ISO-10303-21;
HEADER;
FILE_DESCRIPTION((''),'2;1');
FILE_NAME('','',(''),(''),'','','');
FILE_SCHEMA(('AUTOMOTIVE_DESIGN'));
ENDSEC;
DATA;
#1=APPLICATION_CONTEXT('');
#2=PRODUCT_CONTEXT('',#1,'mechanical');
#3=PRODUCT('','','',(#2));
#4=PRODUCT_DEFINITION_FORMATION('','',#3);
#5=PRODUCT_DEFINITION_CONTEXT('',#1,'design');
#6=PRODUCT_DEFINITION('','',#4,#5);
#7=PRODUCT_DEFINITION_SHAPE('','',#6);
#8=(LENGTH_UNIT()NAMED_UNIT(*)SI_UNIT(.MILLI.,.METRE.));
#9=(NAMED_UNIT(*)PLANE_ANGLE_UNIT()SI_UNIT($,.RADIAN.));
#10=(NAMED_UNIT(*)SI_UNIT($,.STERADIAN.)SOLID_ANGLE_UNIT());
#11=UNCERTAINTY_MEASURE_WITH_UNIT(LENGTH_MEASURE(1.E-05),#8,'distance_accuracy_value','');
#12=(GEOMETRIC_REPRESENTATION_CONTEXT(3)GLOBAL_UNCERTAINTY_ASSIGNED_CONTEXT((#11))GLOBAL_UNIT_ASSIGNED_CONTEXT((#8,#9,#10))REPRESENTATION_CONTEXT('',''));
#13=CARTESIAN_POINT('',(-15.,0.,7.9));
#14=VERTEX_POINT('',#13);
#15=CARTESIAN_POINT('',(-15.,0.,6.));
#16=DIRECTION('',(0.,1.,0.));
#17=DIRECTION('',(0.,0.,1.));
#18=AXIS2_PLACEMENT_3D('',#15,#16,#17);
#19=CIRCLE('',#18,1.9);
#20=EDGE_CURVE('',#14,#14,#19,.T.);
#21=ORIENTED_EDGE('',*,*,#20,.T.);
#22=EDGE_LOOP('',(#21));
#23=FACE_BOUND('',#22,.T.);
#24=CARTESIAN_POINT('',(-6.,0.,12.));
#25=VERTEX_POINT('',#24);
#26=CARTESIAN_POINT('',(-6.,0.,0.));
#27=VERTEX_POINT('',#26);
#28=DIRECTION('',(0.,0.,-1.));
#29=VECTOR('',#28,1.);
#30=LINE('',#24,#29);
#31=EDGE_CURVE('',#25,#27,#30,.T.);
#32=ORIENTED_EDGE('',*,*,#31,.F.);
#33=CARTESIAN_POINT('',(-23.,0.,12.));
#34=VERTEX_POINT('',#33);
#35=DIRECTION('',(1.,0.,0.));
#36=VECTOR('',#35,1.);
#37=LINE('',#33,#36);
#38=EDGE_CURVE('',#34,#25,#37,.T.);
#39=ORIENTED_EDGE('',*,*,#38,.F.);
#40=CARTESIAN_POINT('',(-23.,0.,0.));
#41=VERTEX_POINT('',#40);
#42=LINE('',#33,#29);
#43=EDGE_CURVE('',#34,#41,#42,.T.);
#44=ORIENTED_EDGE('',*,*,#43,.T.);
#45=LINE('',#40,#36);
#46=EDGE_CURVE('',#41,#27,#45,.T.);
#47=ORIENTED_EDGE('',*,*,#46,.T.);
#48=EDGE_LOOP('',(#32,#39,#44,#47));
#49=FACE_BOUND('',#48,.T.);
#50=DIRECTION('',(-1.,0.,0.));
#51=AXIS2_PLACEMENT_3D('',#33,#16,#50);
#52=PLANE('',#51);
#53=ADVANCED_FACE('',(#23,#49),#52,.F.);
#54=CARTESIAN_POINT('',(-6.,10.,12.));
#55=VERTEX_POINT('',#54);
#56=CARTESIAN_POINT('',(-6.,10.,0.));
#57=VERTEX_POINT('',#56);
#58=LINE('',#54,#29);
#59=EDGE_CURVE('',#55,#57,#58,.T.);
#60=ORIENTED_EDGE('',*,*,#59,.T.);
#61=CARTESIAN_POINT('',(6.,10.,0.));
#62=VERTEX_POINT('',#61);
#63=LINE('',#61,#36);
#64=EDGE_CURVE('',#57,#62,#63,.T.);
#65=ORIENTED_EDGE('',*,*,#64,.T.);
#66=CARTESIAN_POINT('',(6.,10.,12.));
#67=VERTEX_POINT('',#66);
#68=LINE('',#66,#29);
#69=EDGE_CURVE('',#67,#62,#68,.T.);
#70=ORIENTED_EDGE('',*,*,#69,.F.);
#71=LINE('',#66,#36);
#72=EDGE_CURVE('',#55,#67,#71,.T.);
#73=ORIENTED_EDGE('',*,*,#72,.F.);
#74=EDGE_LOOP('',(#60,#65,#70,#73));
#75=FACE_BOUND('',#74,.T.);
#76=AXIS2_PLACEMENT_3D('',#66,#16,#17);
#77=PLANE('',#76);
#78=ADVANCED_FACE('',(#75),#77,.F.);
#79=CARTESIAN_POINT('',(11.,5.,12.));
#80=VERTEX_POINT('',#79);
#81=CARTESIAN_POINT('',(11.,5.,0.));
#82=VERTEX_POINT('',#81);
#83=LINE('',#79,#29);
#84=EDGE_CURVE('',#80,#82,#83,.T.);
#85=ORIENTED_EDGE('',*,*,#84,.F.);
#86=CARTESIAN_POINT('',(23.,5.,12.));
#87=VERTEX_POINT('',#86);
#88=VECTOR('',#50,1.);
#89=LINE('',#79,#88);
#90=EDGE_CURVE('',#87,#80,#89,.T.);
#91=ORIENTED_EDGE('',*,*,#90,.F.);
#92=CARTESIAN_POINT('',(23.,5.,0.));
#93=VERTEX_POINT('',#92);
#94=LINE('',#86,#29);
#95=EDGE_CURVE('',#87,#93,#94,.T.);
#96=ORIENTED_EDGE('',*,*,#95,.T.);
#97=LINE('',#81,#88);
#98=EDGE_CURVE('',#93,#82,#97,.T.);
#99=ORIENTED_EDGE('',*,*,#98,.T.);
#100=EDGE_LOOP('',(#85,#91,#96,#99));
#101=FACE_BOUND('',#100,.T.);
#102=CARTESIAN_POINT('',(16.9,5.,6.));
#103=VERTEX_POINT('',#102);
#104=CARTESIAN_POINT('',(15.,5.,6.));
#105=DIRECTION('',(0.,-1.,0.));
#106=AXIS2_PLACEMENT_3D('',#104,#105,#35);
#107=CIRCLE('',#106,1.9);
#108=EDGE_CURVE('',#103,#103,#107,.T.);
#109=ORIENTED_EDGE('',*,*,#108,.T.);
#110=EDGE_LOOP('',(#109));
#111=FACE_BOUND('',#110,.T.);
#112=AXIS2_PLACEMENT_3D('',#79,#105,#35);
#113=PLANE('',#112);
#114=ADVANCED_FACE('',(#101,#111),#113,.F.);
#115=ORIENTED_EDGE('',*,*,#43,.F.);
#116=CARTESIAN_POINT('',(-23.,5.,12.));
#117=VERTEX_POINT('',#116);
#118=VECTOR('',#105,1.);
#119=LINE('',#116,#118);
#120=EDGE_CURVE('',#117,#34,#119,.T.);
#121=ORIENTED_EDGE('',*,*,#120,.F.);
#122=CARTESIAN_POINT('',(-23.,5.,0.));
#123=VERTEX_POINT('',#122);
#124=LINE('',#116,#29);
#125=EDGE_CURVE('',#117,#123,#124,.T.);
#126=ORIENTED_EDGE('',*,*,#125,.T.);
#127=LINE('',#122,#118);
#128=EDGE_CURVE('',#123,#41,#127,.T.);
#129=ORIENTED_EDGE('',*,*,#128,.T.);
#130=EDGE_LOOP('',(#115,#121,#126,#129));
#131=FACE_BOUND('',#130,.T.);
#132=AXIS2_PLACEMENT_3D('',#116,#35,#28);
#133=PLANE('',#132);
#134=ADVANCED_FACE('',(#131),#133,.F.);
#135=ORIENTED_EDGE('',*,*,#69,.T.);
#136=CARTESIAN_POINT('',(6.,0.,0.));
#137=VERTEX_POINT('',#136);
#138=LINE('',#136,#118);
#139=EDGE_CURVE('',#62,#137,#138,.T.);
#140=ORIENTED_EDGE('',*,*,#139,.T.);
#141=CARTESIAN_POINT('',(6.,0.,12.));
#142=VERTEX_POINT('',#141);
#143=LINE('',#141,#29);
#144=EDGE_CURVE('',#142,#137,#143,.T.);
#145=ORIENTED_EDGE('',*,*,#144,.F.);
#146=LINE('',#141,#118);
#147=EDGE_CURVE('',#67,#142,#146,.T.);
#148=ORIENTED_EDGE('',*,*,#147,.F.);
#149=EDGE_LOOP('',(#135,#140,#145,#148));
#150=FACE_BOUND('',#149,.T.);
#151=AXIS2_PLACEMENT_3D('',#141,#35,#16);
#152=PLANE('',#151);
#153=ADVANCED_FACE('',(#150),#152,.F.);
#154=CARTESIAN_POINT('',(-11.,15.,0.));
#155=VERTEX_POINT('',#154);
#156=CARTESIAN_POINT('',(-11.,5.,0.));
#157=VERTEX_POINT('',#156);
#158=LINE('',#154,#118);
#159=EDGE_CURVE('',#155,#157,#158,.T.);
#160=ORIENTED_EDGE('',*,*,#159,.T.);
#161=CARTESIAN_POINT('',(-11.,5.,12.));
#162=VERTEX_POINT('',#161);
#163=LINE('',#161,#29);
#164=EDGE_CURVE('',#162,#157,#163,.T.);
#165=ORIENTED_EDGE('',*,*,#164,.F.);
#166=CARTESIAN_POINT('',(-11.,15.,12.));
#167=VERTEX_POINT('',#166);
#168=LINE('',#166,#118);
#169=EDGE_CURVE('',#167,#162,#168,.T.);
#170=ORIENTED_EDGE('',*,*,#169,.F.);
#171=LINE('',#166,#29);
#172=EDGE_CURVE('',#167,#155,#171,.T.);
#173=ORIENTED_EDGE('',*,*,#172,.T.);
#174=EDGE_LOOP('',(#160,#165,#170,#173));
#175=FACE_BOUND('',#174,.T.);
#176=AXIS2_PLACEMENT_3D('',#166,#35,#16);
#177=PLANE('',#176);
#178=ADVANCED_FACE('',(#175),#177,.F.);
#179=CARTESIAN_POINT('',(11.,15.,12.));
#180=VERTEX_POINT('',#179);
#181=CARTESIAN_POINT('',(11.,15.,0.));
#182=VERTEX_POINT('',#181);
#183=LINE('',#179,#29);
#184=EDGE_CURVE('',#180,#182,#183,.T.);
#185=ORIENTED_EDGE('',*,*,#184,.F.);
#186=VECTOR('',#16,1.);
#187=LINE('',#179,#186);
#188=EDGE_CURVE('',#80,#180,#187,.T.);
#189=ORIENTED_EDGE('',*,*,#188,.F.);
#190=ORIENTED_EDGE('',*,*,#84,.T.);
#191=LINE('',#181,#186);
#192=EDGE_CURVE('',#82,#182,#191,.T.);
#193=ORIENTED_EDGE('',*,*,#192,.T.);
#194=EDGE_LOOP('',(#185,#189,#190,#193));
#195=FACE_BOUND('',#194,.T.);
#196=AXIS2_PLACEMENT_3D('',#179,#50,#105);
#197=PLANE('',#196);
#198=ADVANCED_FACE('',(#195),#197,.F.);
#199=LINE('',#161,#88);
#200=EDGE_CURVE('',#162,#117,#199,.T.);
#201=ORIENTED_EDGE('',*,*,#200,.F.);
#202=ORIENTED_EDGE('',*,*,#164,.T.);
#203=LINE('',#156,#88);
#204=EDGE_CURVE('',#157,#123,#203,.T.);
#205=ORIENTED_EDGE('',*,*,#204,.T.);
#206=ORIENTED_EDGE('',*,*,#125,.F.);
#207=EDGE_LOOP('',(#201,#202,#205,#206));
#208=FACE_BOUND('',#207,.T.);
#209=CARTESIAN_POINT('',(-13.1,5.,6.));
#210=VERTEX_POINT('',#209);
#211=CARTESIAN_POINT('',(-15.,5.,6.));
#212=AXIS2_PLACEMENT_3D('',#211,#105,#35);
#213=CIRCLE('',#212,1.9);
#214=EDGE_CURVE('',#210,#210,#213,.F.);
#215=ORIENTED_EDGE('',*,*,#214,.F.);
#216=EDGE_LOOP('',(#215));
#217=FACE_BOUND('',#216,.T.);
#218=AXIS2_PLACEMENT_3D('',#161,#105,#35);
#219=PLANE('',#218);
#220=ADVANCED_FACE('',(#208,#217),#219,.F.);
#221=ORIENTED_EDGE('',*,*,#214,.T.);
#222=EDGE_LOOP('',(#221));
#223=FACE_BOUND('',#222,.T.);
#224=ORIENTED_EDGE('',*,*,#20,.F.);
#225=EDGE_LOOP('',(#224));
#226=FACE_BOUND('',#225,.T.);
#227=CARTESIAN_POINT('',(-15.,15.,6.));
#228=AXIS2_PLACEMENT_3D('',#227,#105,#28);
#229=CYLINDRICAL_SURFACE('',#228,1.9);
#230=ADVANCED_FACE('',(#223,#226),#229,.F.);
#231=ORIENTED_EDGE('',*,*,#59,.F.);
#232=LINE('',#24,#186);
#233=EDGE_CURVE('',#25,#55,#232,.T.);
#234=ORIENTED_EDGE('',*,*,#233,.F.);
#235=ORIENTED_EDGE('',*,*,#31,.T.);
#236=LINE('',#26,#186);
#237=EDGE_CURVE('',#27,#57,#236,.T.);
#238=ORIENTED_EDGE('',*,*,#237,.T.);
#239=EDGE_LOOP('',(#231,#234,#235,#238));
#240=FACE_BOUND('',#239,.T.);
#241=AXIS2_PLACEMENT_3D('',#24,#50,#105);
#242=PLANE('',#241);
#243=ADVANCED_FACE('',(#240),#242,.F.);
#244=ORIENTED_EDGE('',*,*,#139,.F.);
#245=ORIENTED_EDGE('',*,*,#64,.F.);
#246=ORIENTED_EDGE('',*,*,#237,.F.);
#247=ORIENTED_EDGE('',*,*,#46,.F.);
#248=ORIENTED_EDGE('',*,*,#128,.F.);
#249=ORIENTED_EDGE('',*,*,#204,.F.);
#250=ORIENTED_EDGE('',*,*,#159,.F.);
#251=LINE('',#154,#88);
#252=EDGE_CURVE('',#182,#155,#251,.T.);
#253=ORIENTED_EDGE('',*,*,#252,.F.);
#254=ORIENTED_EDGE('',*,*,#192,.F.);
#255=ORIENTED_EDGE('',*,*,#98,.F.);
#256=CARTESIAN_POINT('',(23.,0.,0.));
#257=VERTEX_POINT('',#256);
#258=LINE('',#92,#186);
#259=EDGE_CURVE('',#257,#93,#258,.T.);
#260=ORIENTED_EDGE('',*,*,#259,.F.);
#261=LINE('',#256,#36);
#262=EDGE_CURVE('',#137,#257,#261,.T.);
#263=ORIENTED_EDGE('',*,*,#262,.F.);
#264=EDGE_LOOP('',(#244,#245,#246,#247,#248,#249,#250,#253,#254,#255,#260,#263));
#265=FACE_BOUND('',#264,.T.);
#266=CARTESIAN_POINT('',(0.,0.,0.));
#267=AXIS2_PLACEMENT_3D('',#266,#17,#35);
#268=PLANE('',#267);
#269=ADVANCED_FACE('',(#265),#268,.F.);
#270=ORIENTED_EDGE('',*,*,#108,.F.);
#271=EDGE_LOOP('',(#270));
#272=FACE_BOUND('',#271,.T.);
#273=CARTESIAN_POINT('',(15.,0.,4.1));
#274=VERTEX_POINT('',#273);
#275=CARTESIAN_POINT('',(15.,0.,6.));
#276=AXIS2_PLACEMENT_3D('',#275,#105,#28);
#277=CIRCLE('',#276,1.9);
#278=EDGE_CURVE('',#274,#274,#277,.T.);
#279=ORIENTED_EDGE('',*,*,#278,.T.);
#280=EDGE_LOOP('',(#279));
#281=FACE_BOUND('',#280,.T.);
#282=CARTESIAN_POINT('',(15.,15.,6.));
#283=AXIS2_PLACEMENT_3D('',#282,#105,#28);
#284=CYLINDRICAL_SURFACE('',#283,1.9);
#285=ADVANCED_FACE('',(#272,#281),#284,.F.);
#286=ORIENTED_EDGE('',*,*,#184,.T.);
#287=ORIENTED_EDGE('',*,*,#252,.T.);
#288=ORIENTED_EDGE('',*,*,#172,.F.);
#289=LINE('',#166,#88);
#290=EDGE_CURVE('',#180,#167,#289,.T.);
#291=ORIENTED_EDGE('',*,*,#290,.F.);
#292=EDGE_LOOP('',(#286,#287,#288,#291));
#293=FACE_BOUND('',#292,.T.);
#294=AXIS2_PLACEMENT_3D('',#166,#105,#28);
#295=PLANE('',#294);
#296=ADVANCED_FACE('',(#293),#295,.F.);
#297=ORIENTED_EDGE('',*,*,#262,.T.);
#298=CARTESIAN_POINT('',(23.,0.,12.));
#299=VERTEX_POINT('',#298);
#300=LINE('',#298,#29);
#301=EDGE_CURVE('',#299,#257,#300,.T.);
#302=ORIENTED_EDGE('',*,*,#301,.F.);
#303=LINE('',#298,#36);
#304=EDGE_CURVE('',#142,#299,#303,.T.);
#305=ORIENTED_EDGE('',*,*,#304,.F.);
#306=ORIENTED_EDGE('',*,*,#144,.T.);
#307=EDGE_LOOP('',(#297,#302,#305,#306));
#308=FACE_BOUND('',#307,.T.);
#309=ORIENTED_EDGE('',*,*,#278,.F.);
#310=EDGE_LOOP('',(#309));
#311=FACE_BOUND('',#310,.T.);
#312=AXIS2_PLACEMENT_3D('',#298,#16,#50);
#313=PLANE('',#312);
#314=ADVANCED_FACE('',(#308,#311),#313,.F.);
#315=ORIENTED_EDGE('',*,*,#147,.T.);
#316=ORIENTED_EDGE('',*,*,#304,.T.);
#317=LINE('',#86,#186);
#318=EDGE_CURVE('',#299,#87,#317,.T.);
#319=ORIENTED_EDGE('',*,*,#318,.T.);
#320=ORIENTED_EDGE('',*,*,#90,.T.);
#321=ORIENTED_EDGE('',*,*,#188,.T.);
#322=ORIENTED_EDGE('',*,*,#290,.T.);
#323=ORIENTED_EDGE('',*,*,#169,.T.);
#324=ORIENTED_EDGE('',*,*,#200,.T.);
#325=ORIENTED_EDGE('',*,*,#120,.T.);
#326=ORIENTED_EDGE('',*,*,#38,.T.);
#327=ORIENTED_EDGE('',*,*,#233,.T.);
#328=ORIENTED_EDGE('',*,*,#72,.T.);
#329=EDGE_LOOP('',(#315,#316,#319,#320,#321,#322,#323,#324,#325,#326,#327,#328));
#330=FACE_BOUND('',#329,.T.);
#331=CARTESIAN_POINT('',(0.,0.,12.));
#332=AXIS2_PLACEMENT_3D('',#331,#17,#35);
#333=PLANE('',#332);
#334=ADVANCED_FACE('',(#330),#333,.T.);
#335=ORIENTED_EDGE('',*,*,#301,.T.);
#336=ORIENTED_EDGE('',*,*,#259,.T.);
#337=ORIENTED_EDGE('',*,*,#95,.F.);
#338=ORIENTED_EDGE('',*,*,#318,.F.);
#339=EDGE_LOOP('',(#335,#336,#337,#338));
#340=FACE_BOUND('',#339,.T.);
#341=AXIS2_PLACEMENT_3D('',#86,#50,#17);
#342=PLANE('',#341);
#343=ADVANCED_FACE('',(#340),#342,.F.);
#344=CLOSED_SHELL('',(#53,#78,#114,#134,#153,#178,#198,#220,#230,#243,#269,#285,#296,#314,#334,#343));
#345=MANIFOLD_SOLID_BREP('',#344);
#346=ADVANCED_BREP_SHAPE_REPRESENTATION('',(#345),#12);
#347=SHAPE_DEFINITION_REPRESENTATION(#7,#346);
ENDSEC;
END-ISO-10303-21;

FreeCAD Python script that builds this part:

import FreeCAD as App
import Part
import Sketcher
from FreeCAD import Vector
Q = App.Units.Quantity


def add_polygon(sketch, points):
    """Adds a closed chain of lines whose ends are joined by coincident constraints."""
    first, n = sketch.GeometryCount, len(points)
    for a, b in zip(points, points[1:] + points[:1]):
        sketch.addGeometry(Part.LineSegment(App.Vector(*a, 0), App.Vector(*b, 0)), False)
    for i in range(n):
        sketch.addConstraint(Sketcher.Constraint("Coincident", first + i, 2, first + (i + 1) % n, 1))

doc = App.newDocument("Part")
body = doc.addObject("PartDesign::Body", "Body")

# Sketch on XY plane
sketch1 = body.newObject("Sketcher::SketchObject", "Sketch")
sketch1.AttachmentSupport = (doc.getObject("XY_Plane"), [""])
sketch1.MapMode = "FlatFace"
add_polygon(sketch1, [(11, 15), (-11, 15), (-11, 5), (-23, 5), (-23, 0), (-6, 0), (-6, 10), (6, 10), (6, 0), (23, 0), (23, 5), (11, 5)])  # lines 0-11
sketch1.addConstraint([
    Sketcher.Constraint("Horizontal", 0),
    Sketcher.Constraint("Vertical", 1),
    Sketcher.Constraint("Horizontal", 2),
    Sketcher.Constraint("Vertical", 3),
    Sketcher.Constraint("Horizontal", 4),
    Sketcher.Constraint("Vertical", 5),
    Sketcher.Constraint("Horizontal", 6),
    Sketcher.Constraint("Vertical", 7),
    Sketcher.Constraint("Horizontal", 8),
    Sketcher.Constraint("Vertical", 9),
    Sketcher.Constraint("Horizontal", 10),
    Sketcher.Constraint("Vertical", 11),
    Sketcher.Constraint("Symmetric", 4, 2, 7, 2, -1, 1),
    Sketcher.Constraint("Symmetric", 3, 2, 8, 2, -2),
    Sketcher.Constraint("Symmetric", 1, 2, 10, 2, -2),
    Sketcher.Constraint("Equal", 2, 6),
    Sketcher.Constraint("Equal", 1, 5),
    Sketcher.Constraint("DistanceX", 0, 2, 0, 1, Q("22 mm")),
    Sketcher.Constraint("DistanceX", 2, 2, 2, 1, Q("12 mm")),
    Sketcher.Constraint("DistanceY", 1, 2, 1, 1, Q("10 mm")),
    Sketcher.Constraint("DistanceY", 3, 2, 3, 1, Q("5 mm")),
])
pad1 = body.newObject("PartDesign::Pad", "Pad")
pad1.Profile = sketch1
pad1.Length = 12

# Sketch on XZ plane
sketch2 = body.newObject("Sketcher::SketchObject", "Sketch001")
sketch2.AttachmentSupport = (doc.getObject("XZ_Plane"), [""])
sketch2.MapMode = "FlatFace"
sketch2.addGeometry([
    Part.Circle(Vector(-15, 6, 0), Vector(0, 0, 1), 1.9),
    Part.Circle(Vector(15, 6, 0), Vector(0, 0, 1), 1.9),
], False)
sketch2.addConstraint([
    Sketcher.Constraint("Equal", 0, 1),
    Sketcher.Constraint("Symmetric", 0, 3, 1, 3, -2),
    Sketcher.Constraint("Diameter", 0, Q("3.8 mm")),
    Sketcher.Constraint("DistanceX", 0, 3, -1, 1, Q("15 mm")),
    Sketcher.Constraint("DistanceY", -1, 1, 0, 3, Q("6 mm")),
])
pocket1 = body.newObject("PartDesign::Pocket", "Pocket")
pocket1.Profile = sketch2
pocket1.Type = "ThroughAll"

doc.recompute()
